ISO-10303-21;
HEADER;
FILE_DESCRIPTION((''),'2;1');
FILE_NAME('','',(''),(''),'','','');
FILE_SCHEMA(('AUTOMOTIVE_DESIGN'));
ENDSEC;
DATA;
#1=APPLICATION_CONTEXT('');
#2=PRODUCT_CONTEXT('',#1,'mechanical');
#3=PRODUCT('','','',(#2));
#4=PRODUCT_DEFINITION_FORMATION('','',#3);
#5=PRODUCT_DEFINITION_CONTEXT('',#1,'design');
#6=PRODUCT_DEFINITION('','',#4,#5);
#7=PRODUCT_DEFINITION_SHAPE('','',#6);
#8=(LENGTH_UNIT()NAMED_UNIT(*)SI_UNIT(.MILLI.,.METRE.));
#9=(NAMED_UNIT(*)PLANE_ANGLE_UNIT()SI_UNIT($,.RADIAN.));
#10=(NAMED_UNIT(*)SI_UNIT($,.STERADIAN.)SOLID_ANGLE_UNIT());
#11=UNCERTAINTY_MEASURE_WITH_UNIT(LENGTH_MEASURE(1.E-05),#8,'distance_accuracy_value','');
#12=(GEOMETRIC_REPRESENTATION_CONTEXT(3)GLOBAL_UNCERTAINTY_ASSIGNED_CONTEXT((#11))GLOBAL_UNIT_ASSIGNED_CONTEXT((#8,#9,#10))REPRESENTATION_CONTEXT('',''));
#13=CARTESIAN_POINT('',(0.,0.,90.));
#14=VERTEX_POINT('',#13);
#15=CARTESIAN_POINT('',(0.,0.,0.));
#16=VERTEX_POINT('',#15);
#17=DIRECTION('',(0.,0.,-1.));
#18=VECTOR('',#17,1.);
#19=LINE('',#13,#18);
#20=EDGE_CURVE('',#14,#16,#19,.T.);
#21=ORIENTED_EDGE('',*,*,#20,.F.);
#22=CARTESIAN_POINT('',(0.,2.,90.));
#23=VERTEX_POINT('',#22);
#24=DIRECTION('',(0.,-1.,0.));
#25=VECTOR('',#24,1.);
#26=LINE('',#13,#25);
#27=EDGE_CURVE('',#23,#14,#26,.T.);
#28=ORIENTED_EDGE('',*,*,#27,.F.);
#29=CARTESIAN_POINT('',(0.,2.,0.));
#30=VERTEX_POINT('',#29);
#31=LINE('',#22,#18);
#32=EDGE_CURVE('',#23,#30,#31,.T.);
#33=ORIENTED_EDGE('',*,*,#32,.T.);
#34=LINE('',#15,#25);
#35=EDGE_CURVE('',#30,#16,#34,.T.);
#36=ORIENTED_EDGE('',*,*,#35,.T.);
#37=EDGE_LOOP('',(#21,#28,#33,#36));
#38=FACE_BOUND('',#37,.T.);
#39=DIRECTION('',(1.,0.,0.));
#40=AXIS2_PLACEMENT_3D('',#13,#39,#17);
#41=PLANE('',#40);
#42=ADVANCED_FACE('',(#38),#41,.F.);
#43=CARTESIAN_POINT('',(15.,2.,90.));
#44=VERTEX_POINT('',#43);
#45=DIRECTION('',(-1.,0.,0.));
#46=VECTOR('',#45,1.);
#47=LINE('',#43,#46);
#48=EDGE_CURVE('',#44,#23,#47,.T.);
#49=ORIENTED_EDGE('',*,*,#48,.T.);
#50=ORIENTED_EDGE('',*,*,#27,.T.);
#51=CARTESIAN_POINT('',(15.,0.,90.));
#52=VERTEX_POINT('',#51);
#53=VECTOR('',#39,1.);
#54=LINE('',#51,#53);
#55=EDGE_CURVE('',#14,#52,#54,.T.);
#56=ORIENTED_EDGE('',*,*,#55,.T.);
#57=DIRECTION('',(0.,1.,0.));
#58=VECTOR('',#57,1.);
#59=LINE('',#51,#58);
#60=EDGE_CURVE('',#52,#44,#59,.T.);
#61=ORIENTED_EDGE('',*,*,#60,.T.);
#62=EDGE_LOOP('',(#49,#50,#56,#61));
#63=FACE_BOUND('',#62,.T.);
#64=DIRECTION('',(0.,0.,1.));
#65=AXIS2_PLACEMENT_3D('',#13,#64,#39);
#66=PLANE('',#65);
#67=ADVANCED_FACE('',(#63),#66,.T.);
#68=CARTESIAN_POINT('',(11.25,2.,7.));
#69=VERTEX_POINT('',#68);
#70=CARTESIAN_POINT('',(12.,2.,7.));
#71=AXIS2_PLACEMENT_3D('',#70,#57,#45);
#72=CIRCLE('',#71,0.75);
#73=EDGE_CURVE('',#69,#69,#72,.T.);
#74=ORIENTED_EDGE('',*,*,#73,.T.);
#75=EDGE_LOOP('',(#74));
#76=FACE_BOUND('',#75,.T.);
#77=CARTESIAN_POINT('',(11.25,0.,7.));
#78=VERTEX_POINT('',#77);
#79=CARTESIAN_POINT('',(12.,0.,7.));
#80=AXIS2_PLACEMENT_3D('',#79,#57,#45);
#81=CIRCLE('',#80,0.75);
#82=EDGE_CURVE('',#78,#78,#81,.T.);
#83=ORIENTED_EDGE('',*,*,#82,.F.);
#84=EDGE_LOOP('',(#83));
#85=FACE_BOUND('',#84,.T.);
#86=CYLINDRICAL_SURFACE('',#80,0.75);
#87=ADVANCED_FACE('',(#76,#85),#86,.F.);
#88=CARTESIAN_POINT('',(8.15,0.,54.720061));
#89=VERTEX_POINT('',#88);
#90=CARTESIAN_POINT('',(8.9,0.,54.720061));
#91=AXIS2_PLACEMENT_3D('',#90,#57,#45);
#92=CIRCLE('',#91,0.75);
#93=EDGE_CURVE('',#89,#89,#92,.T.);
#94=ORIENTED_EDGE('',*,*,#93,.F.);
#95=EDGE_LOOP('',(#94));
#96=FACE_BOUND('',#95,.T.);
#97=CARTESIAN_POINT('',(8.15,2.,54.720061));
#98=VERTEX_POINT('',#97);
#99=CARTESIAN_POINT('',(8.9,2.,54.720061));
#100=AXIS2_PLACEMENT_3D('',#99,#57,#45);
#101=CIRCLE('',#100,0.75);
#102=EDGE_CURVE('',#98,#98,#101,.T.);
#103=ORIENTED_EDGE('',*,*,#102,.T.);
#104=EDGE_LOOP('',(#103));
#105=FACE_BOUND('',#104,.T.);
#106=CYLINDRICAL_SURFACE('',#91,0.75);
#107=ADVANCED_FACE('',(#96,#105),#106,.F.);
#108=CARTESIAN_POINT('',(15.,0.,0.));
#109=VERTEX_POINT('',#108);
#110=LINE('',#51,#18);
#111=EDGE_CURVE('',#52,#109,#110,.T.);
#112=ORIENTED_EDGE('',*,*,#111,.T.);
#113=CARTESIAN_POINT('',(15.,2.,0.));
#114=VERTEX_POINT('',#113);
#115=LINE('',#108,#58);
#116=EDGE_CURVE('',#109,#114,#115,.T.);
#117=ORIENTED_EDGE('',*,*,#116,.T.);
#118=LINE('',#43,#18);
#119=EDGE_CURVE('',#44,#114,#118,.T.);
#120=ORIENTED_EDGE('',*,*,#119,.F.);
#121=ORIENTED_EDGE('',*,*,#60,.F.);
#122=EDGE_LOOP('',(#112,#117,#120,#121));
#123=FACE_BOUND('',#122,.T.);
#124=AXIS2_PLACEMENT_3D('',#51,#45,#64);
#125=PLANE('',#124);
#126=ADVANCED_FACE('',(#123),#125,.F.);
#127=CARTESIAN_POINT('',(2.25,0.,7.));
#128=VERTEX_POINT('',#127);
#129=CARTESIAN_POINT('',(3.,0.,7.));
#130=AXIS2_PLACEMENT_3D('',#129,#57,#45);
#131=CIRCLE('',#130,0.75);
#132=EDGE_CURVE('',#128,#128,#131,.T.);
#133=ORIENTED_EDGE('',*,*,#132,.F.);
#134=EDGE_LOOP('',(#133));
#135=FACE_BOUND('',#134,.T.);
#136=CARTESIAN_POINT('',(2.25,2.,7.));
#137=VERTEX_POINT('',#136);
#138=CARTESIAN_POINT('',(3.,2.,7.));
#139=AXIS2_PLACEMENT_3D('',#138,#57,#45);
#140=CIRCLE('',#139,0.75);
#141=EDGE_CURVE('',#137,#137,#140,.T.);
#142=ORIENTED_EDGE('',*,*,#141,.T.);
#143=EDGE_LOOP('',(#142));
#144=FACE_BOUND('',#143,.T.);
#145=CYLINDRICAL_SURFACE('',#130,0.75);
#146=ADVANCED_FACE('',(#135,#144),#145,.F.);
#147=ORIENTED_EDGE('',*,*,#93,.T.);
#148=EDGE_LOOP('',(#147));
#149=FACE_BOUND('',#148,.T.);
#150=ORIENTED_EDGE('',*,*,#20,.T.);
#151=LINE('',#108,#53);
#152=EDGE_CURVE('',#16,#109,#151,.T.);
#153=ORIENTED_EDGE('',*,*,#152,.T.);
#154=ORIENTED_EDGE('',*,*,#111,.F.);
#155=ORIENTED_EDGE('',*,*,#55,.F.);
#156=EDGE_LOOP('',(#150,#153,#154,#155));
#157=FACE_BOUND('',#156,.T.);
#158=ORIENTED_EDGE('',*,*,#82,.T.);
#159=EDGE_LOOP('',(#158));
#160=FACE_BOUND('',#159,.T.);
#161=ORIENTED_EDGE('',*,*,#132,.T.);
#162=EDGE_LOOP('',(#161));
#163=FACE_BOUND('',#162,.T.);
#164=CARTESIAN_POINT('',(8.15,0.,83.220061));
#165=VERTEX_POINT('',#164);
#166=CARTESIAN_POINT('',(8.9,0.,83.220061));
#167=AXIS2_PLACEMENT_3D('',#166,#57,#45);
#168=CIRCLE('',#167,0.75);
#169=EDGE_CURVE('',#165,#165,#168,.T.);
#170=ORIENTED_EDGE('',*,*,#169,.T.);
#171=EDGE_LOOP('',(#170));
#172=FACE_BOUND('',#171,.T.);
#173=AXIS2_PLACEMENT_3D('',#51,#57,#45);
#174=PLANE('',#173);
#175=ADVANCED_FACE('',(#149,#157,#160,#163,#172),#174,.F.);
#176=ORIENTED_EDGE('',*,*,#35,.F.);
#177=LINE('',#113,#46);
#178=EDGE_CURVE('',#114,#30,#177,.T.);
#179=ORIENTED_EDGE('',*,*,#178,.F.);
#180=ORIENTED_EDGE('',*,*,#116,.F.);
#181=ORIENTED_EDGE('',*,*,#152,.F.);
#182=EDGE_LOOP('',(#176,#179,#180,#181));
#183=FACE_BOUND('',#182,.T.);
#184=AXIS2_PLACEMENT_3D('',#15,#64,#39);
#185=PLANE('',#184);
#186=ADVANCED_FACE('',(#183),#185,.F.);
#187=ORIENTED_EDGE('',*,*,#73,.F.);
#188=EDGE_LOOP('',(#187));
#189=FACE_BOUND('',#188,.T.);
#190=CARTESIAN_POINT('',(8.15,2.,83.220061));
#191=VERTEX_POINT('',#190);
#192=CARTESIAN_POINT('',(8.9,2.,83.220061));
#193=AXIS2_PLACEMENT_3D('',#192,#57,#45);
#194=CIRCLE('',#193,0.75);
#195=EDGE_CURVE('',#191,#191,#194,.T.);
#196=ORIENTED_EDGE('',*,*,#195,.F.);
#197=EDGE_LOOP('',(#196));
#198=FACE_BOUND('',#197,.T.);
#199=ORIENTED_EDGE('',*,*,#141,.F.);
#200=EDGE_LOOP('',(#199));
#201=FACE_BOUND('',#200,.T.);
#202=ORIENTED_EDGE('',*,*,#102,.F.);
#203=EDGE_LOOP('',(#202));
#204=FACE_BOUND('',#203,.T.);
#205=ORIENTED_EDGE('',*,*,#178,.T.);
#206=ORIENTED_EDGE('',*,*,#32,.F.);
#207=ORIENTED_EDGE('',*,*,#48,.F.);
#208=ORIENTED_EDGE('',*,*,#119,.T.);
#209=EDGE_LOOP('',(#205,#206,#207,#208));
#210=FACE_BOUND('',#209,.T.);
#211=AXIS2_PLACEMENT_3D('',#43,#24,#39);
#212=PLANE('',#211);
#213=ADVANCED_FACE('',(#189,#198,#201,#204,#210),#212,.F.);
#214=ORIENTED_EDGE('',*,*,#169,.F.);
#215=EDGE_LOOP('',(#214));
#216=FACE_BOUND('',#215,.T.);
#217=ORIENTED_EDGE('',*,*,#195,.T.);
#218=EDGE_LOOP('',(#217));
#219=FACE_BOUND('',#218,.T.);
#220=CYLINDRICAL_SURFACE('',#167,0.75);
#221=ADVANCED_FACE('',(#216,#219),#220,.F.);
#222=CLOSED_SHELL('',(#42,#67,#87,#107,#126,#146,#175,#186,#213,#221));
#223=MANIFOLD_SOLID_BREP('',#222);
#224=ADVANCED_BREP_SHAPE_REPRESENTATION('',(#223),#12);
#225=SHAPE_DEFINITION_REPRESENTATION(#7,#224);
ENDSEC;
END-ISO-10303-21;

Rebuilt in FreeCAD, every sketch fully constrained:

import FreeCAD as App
import Part
import Sketcher

V = App.Vector
Q = App.Units.Quantity


def add_polygon(sketch, points):
    """Adds a closed chain of lines whose ends are joined by coincident constraints."""
    first, n = sketch.GeometryCount, len(points)
    for a, b in zip(points, points[1:] + points[:1]):
        sketch.addGeometry(Part.LineSegment(App.Vector(*a, 0), App.Vector(*b, 0)), False)
    for i in range(n):
        sketch.addConstraint(Sketcher.Constraint("Coincident", first + i, 2, first + (i + 1) % n, 1))

doc = App.newDocument("Part")
body = doc.addObject("PartDesign::Body", "Body")

# Sketch on XY plane
sketch1 = doc.addObject("Sketcher::SketchObject", "Sketch")
body.addObject(sketch1)
sketch1.AttachmentSupport = (doc.XY_Plane, [""])
sketch1.MapMode = "FlatFace"
add_polygon(sketch1, [(0, 2), (0, 0), (15, 0), (15, 2)])  # lines 0-3
sketch1.addConstraint([
    Sketcher.Constraint("Vertical", 0),
    Sketcher.Constraint("Horizontal", 1),
    Sketcher.Constraint("Vertical", 2),
    Sketcher.Constraint("Horizontal", 3),
    Sketcher.Constraint("Coincident", 0, 2, -1, 1),
    Sketcher.Constraint("DistanceX", 1, 1, 1, 2, Q("15 mm")),
    Sketcher.Constraint("DistanceY", 0, 2, 0, 1, Q("2 mm")),
])
pad1 = doc.addObject("PartDesign::Pad", "Pad")
body.addObject(pad1)
pad1.Profile = sketch1
pad1.Length = 90

# Sketch on XZ plane
sketch2 = doc.addObject("Sketcher::SketchObject", "Sketch001")
body.addObject(sketch2)
sketch2.AttachmentSupport = (doc.XZ_Plane, [""])
sketch2.MapMode = "FlatFace"
sketch2.AttachmentOffset = App.Placement(V(0, 0, -2), App.Rotation())
sketch2.addGeometry([
    Part.Circle(V(8.9, 83.220061, 0), V(0, 0, 1), 0.75),
    Part.Circle(V(8.9, 54.720061, 0), V(0, 0, 1), 0.75),
    Part.Circle(V(12, 7, 0), V(0, 0, 1), 0.75),
    Part.Circle(V(3, 7, 0), V(0, 0, 1), 0.75),
], False)
sketch2.addConstraint([
    Sketcher.Constraint("Equal", 0, 1),
    Sketcher.Constraint("Equal", 1, 2),
    Sketcher.Constraint("Equal", 2, 3),
    Sketcher.Constraint("Horizontal", 2, 3, 3, 3),
    Sketcher.Constraint("Vertical", 0, 3, 1, 3),
    Sketcher.Constraint("Diameter", 0, Q("1.5 mm")),
    Sketcher.Constraint("DistanceX", -1, 1, 2, 3, Q("12 mm")),
    Sketcher.Constraint("DistanceY", -1, 1, 2, 3, Q("7 mm")),
    Sketcher.Constraint("DistanceX", -1, 1, 3, 3, Q("3 mm")),
    Sketcher.Constraint("DistanceX", -1, 1, 0, 3, Q("8.9 mm")),
    Sketcher.Constraint("DistanceY", 1, 3, 0, 3, Q("28.5 mm")),
    Sketcher.Constraint("DistanceY", -1, 1, 0, 3, Q("83.220061 mm")),
])
pocket1 = doc.addObject("PartDesign::Pocket", "Pocket")
body.addObject(pocket1)
pocket1.Profile = sketch2
pocket1.Type = "ThroughAll"
pocket1.Reversed = True

doc.recompute()
